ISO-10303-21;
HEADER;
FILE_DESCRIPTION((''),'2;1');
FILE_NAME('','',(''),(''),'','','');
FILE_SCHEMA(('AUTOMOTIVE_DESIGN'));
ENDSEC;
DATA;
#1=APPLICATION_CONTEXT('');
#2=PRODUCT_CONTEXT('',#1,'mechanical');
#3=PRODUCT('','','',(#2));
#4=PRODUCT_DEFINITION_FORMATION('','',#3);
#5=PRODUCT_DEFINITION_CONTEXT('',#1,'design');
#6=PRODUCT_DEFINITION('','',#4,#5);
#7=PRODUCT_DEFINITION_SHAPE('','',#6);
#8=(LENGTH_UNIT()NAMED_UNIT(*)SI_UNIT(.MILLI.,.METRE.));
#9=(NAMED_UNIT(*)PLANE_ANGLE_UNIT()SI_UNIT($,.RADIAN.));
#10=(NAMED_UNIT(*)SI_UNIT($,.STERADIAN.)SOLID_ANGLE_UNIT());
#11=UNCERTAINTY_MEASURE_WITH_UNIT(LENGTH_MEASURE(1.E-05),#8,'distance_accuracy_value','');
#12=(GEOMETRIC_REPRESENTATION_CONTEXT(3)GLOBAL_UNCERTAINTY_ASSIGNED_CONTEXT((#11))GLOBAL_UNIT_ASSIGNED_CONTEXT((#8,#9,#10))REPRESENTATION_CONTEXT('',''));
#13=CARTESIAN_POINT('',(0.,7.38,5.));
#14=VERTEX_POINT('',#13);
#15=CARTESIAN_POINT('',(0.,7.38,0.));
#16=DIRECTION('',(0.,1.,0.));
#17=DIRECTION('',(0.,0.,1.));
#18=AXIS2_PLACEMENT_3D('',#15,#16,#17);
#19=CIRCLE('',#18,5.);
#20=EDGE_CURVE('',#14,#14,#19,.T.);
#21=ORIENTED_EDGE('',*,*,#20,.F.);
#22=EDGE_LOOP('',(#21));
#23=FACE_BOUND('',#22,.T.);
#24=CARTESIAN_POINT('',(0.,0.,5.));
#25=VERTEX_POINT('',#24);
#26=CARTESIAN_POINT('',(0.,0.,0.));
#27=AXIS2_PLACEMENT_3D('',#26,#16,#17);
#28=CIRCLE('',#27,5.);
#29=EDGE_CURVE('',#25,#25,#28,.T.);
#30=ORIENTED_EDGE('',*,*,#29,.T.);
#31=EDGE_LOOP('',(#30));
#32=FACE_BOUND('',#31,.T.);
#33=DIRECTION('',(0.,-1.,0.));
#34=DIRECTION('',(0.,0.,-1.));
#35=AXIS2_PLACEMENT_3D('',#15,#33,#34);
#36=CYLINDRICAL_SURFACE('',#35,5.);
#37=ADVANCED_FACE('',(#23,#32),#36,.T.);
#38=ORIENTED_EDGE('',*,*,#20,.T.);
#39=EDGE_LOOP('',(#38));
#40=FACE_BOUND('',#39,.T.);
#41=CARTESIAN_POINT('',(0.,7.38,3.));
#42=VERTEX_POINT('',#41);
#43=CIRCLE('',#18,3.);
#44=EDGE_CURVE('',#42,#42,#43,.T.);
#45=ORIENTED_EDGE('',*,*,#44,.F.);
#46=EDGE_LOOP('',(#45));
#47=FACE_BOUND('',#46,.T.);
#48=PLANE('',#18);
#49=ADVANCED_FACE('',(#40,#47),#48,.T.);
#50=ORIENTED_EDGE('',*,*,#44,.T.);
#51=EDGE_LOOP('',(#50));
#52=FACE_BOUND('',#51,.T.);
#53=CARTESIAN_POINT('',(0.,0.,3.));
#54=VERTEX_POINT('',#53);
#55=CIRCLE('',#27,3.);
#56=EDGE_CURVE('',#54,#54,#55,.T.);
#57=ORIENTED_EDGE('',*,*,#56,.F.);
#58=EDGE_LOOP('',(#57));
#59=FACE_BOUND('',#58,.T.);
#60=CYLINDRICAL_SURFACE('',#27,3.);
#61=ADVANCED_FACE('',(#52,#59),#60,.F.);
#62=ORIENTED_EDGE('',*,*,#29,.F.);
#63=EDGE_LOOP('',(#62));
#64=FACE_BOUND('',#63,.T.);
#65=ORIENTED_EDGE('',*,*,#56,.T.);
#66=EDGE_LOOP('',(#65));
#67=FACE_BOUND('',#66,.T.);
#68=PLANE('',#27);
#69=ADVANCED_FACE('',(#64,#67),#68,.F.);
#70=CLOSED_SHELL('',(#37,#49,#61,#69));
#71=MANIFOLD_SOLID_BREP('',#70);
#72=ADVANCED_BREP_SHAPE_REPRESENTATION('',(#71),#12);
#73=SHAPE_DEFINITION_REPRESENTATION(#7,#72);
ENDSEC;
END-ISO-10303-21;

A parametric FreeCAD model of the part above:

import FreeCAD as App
import Part
import Sketcher
from FreeCAD import Vector
Q = App.Units.Quantity

doc = App.newDocument("Part")
body = doc.addObject("PartDesign::Body", "Body")

# Sketch on XZ plane
sketch1 = doc.addObject("Sketcher::SketchObject", "Sketch")
body.addObject(sketch1)
sketch1.AttachmentSupport = (doc.XZ_Plane, [""])
sketch1.MapMode = "FlatFace"
sketch1.addGeometry(Part.Circle(Vector(0, 0, 0), Vector(0, 0, 1), 5), False)
sketch1.addConstraint(Sketcher.Constraint("Coincident", 0, 3, -1, 1))
sketch1.addConstraint(Sketcher.Constraint("Diameter", 0, Q("10 mm")))
pad1 = doc.addObject("PartDesign::Pad", "Pad")
body.addObject(pad1)
pad1.Profile = sketch1
pad1.Length = 7.38
pad1.Reversed = True

# Sketch on XZ plane
sketch2 = doc.addObject("Sketcher::SketchObject", "Sketch001")
body.addObject(sketch2)
sketch2.AttachmentSupport = (doc.XZ_Plane, [""])
sketch2.MapMode = "FlatFace"
sketch2.AttachmentOffset = App.Placement(Vector(0, 0, -7.38), App.Rotation())
sketch2.addGeometry(Part.Circle(Vector(0, 0, 0), Vector(0, 0, 1), 3), False)
sketch2.addConstraint(Sketcher.Constraint("Coincident", 0, 3, -1, 1))
sketch2.addConstraint(Sketcher.Constraint("Diameter", 0, Q("6 mm")))
pocket1 = doc.addObject("PartDesign::Pocket", "Pocket")
body.addObject(pocket1)
pocket1.Profile = sketch2
pocket1.Length = 7.38
pocket1.Reversed = True

doc.recompute()
